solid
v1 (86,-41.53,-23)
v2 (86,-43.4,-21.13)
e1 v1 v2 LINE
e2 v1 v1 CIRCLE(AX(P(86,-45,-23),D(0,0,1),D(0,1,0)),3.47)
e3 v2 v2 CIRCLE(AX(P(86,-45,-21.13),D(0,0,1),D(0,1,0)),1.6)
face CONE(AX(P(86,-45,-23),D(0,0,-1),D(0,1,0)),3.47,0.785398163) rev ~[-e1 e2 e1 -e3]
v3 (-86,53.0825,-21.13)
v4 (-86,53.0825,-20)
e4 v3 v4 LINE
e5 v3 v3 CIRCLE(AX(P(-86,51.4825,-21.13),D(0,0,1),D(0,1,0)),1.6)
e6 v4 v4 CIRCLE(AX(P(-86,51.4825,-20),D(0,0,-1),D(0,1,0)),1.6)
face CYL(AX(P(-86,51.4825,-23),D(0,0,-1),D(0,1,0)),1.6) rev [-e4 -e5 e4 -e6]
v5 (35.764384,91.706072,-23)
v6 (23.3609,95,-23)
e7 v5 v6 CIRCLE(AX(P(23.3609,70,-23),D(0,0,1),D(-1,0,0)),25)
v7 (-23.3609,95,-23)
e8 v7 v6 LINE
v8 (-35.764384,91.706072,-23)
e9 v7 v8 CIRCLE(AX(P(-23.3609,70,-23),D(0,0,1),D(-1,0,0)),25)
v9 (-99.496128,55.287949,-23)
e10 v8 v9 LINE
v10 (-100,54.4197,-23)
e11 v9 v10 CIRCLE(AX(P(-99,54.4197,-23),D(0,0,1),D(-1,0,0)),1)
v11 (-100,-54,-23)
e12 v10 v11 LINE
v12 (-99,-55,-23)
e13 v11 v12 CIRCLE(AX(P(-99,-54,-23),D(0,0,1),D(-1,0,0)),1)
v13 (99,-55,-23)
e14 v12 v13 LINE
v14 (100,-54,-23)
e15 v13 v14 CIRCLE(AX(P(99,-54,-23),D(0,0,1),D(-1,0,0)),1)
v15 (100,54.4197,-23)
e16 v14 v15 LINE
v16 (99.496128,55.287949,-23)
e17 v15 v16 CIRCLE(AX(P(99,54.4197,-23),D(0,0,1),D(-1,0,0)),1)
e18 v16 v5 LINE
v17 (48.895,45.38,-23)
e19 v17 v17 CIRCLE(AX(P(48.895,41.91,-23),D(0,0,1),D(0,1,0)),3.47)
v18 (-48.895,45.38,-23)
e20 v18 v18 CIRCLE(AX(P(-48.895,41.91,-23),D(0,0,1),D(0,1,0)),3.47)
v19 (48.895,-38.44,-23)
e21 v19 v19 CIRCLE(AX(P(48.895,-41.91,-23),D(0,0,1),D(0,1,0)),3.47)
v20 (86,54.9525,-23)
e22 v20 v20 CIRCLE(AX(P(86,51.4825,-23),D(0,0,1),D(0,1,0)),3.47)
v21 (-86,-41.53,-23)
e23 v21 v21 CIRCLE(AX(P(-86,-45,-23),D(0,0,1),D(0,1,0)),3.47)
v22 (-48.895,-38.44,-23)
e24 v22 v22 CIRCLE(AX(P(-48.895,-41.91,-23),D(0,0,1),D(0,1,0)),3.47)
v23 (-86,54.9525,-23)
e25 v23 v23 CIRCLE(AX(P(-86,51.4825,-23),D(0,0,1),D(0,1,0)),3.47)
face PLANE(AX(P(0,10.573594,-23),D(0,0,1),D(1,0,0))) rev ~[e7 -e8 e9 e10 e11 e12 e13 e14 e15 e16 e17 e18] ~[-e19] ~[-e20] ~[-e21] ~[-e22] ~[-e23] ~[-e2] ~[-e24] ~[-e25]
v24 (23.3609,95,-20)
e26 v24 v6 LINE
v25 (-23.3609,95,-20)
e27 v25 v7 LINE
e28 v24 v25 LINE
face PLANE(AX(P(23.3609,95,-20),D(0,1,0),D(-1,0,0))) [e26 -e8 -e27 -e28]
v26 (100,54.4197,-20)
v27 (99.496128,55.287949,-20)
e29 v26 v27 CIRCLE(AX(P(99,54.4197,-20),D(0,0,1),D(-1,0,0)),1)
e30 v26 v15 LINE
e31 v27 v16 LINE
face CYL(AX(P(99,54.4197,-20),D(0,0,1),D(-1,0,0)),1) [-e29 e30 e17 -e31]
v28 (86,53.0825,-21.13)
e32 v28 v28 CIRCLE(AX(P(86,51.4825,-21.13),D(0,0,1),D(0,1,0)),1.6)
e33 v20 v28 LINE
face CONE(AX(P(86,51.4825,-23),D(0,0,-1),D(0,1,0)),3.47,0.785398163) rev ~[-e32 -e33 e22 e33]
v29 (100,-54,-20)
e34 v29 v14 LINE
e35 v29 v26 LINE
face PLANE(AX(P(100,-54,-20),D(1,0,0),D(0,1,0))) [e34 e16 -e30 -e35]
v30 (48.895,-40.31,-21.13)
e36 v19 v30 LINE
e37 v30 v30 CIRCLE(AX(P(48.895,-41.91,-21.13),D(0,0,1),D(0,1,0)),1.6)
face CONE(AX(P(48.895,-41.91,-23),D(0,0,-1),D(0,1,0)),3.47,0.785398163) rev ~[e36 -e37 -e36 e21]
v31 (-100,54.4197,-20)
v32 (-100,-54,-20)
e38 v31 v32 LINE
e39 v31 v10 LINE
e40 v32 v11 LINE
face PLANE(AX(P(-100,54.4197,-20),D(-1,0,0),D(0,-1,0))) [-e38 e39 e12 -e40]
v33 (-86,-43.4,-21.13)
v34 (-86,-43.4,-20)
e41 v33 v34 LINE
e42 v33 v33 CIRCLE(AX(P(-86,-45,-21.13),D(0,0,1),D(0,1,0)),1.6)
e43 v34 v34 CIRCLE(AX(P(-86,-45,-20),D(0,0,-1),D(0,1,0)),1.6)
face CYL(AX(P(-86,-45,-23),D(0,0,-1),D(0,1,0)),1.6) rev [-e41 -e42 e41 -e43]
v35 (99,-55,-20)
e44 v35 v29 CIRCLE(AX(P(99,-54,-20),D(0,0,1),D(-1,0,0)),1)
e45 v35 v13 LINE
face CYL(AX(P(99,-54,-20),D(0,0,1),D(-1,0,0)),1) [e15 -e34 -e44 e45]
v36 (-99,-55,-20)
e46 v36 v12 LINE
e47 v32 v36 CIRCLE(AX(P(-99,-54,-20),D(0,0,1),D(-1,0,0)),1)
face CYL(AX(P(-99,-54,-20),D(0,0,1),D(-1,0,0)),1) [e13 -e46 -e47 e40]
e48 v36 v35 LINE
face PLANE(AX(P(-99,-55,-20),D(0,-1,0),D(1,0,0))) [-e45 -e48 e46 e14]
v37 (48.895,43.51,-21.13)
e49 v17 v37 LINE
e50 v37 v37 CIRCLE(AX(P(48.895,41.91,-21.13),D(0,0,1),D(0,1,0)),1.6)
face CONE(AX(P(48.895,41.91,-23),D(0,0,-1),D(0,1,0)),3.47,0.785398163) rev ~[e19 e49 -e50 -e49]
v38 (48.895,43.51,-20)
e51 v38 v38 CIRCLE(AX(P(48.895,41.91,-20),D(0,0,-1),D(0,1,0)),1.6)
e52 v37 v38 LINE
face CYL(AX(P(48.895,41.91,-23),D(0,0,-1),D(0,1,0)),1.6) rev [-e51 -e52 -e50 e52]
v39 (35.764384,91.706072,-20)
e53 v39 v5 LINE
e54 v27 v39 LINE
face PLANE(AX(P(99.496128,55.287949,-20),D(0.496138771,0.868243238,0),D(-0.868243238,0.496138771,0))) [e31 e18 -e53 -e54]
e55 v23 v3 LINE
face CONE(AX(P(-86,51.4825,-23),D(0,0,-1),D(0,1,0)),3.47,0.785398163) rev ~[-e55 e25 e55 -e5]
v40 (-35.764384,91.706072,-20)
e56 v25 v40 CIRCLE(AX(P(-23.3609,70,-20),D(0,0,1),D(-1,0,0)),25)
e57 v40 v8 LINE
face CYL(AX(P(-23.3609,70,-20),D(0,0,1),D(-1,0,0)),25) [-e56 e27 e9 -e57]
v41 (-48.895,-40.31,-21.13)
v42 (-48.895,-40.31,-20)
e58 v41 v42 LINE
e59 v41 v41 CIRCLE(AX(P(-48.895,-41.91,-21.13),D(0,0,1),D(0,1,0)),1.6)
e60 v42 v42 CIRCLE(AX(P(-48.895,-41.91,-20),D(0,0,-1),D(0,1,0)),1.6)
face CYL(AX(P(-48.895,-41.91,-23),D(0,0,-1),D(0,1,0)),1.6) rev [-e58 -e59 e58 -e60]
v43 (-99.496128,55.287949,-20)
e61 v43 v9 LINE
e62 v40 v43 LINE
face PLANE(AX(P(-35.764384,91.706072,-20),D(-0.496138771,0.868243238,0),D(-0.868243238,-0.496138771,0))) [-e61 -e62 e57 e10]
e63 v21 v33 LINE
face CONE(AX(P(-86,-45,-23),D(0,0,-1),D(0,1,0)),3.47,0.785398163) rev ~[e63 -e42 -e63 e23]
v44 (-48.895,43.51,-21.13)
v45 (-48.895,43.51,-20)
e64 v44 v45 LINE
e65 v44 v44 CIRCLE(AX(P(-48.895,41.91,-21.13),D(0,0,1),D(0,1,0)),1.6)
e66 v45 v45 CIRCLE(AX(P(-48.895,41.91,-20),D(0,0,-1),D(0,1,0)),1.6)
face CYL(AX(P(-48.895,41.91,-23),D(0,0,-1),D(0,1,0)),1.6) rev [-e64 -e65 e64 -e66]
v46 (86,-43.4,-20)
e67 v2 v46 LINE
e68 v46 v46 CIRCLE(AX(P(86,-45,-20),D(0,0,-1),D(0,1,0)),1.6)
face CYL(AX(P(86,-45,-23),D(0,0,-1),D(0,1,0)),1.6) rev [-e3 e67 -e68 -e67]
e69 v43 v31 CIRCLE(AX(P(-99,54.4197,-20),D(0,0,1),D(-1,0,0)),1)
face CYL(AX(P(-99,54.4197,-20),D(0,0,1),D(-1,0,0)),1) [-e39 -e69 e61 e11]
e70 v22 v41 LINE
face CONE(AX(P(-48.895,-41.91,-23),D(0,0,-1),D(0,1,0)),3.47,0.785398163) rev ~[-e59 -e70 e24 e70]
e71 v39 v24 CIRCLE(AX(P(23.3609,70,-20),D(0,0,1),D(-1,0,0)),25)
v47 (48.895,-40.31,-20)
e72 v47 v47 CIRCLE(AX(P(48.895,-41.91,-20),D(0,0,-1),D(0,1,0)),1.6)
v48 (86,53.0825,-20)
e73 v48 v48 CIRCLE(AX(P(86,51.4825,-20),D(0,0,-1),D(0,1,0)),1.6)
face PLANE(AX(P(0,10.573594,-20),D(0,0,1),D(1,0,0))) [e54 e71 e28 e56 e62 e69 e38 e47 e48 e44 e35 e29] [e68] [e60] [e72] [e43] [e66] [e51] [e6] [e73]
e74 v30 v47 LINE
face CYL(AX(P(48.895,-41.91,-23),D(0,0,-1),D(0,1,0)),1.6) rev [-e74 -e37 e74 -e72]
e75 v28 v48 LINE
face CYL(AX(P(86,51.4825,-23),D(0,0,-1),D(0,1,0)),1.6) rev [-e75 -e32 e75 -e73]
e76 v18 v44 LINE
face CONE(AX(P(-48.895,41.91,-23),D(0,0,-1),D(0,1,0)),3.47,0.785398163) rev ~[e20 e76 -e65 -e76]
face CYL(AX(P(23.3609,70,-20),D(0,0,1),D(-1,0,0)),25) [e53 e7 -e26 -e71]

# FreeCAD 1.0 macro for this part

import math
import FreeCAD as App
import Part
import Sketcher

V = App.Vector

doc = App.newDocument("Part")
body = doc.addObject("PartDesign::Body", "Body")

sketch1 = body.newObject("Sketcher::SketchObject", "Sketch")
sketch1.AttachmentSupport = (doc.getObject("XY_Plane"), [""])
sketch1.MapMode = "FlatFace"
sketch1.AttachmentOffset = App.Placement(V(0, 0, -20), App.Rotation())
sketch1.addGeometry([
    Part.LineSegment(V(35.8, 91.7, 0), V(99.5, 55.3, 0)),
    Part.ArcOfCircle(Part.Circle(V(99, 54.4, 0), V(0, 0, 1), 1), math.radians(0), math.radians(60)),
    Part.LineSegment(V(100, 54.4, 0), V(100, -54, 0)),
    Part.ArcOfCircle(Part.Circle(V(99, -54, 0), V(0, 0, 1), 1), math.radians(-90), math.radians(0)),
    Part.LineSegment(V(99, -55, 0), V(-99, -55, 0)),
    Part.ArcOfCircle(Part.Circle(V(-99, -54, 0), V(0, 0, 1), 1), math.radians(180), math.radians(270)),
    Part.LineSegment(V(-100, -54, 0), V(-100, 54.4, 0)),
    Part.ArcOfCircle(Part.Circle(V(-99, 54.4, 0), V(0, 0, 1), 1), math.radians(120), math.radians(180)),
    Part.LineSegment(V(-99.5, 55.3, 0), V(-35.8, 91.7, 0)),
    Part.ArcOfCircle(Part.Circle(V(-23.4, 70, 0), V(0, 0, 1), 25), math.radians(90), math.radians(120)),
    Part.LineSegment(V(-23.4, 95, 0), V(23.4, 95, 0)),
    Part.ArcOfCircle(Part.Circle(V(23.4, 70, 0), V(0, 0, 1), 25), math.radians(60), math.radians(90)),
], False)
sketch1.addConstraint([
    Sketcher.Constraint("Tangent", 0, 2, 1, 2),
    Sketcher.Constraint("Tangent", 1, 1, 2, 1),
    Sketcher.Constraint("Tangent", 2, 2, 3, 2),
    Sketcher.Constraint("Tangent", 3, 1, 4, 1),
    Sketcher.Constraint("Tangent", 4, 2, 5, 2),
    Sketcher.Constraint("Tangent", 5, 1, 6, 1),
    Sketcher.Constraint("Tangent", 6, 2, 7, 2),
    Sketcher.Constraint("Tangent", 7, 1, 8, 1),
    Sketcher.Constraint("Tangent", 8, 2, 9, 2),
    Sketcher.Constraint("Tangent", 9, 1, 10, 1),
    Sketcher.Constraint("Tangent", 10, 2, 11, 2),
    Sketcher.Constraint("Tangent", 11, 1, 0, 1),
    Sketcher.Constraint("Vertical", 2),
    Sketcher.Constraint("Horizontal", 4),
    Sketcher.Constraint("Vertical", 6),
    Sketcher.Constraint("Horizontal", 10),
    Sketcher.Constraint("Equal", 1, 3),
    Sketcher.Constraint("Equal", 3, 5),
    Sketcher.Constraint("Equal", 5, 7),
    Sketcher.Constraint("Equal", 9, 11),
    Sketcher.Constraint("Symmetric", 1, 3, 7, 3, -2),
    Sketcher.Constraint("Horizontal", 8, 2, 11, 1),
    Sketcher.Constraint("Radius", 1, 1.0),
    Sketcher.Constraint("Radius", 9, 25.0),
    Sketcher.Constraint("DistanceX", 4, 2, 4, 1, 198.0),
    Sketcher.Constraint("DistanceY", 3, 3, -1, 1, 54.0),
    Sketcher.Constraint("DistanceY", -1, 1, 9, 3, 70.0),
    Sketcher.Constraint("Distance", 0, 73.403),
    Sketcher.Constraint("DistanceX", 10, 1, 10, 2, 46.7218),
])
pad1 = body.newObject("PartDesign::Pad", "Pad")
pad1.Profile = sketch1
pad1.Length = 3
pad1.Reversed = True

sketch2 = body.newObject("Sketcher::SketchObject", "Sketch001")
sketch2.AttachmentSupport = (doc.getObject("XY_Plane"), [""])
sketch2.MapMode = "FlatFace"
sketch2.AttachmentOffset = App.Placement(V(0, 0, -23), App.Rotation())
sketch2.addGeometry(Part.Circle(V(86, 51.5, 0), V(0, 0, 1), 1.6), False)
sketch2.addConstraint([
    Sketcher.Constraint("Diameter", 0, 3.2),
    Sketcher.Constraint("DistanceX", -1, 1, 0, 3, 86.0),
    Sketcher.Constraint("DistanceY", -1, 1, 0, 3, 51.4825),
])
doc.recompute()
hole = body.newObject("PartDesign::Hole", "Hole")
hole.Profile = sketch2
hole.ThreadType = "None"
hole.Diameter = 3.2
hole.DepthType = "ThroughAll"
hole.HoleCutType = "Countersink"
hole.HoleCutDiameter = 6.94
hole.HoleCutCountersinkAngle = 90
hole.Reversed = True

sketch3 = body.newObject("Sketcher::SketchObject", "Sketch002")
sketch3.AttachmentSupport = (doc.getObject("XY_Plane"), [""])
sketch3.MapMode = "FlatFace"
sketch3.AttachmentOffset = App.Placement(V(0, 0, -23), App.Rotation())
sketch3.addGeometry(Part.Circle(V(86, -45, 0), V(0, 0, 1), 1.6), False)
sketch3.addConstraint([
    Sketcher.Constraint("Diameter", 0, 3.2),
    Sketcher.Constraint("DistanceX", -1, 1, 0, 3, 86.0),
    Sketcher.Constraint("DistanceY", 0, 3, -1, 1, 45.0),
])
doc.recompute()
hole2 = body.newObject("PartDesign::Hole", "Hole001")
hole2.Profile = sketch3
hole2.ThreadType = "None"
hole2.Diameter = 3.2
hole2.DepthType = "ThroughAll"
hole2.HoleCutType = "Countersink"
hole2.HoleCutDiameter = 6.94
hole2.HoleCutCountersinkAngle = 90
hole2.Reversed = True

sketch4 = body.newObject("Sketcher::SketchObject", "Sketch003")
sketch4.AttachmentSupport = (doc.getObject("XY_Plane"), [""])
sketch4.MapMode = "FlatFace"
sketch4.AttachmentOffset = App.Placement(V(0, 0, -23), App.Rotation())
sketch4.addGeometry(Part.Circle(V(-86, 51.5, 0), V(0, 0, 1), 1.6), False)
sketch4.addConstraint([
    Sketcher.Constraint("Diameter", 0, 3.2),
    Sketcher.Constraint("DistanceX", 0, 3, -1, 1, 86.0),
    Sketcher.Constraint("DistanceY", -1, 1, 0, 3, 51.4825),
])
doc.recompute()
hole3 = body.newObject("PartDesign::Hole", "Hole002")
hole3.Profile = sketch4
hole3.ThreadType = "None"
hole3.Diameter = 3.2
hole3.DepthType = "ThroughAll"
hole3.HoleCutType = "Countersink"
hole3.HoleCutDiameter = 6.94
hole3.HoleCutCountersinkAngle = 90
hole3.Reversed = True

sketch5 = body.newObject("Sketcher::SketchObject", "Sketch004")
sketch5.AttachmentSupport = (doc.getObject("XY_Plane"), [""])
sketch5.MapMode = "FlatFace"
sketch5.AttachmentOffset = App.Placement(V(0, 0, -23), App.Rotation())
sketch5.addGeometry(Part.Circle(V(-86, -45, 0), V(0, 0, 1), 1.6), False)
sketch5.addConstraint([
    Sketcher.Constraint("Diameter", 0, 3.2),
    Sketcher.Constraint("DistanceX", 0, 3, -1, 1, 86.0),
    Sketcher.Constraint("DistanceY", 0, 3, -1, 1, 45.0),
])
doc.recompute()
hole4 = body.newObject("PartDesign::Hole", "Hole003")
hole4.Profile = sketch5
hole4.ThreadType = "None"
hole4.Diameter = 3.2
hole4.DepthType = "ThroughAll"
hole4.HoleCutType = "Countersink"
hole4.HoleCutDiameter = 6.94
hole4.HoleCutCountersinkAngle = 90
hole4.Reversed = True

sketch6 = body.newObject("Sketcher::SketchObject", "Sketch005")
sketch6.AttachmentSupport = (doc.getObject("XY_Plane"), [""])
sketch6.MapMode = "FlatFace"
sketch6.AttachmentOffset = App.Placement(V(0, 0, -23), App.Rotation())
sketch6.addGeometry(Part.Circle(V(48.9, 41.9, 0), V(0, 0, 1), 1.6), False)
sketch6.addConstraint([
    Sketcher.Constraint("Diameter", 0, 3.2),
    Sketcher.Constraint("DistanceY", -1, 1, 0, 3, 41.91),
    Sketcher.Constraint("DistanceX", -1, 1, 0, 3, 48.895),
])
doc.recompute()
hole5 = body.newObject("PartDesign::Hole", "Hole004")
hole5.Profile = sketch6
hole5.ThreadType = "None"
hole5.Diameter = 3.2
hole5.DepthType = "ThroughAll"
hole5.HoleCutType = "Countersink"
hole5.HoleCutDiameter = 6.94
hole5.HoleCutCountersinkAngle = 90
hole5.Reversed = True

sketch7 = body.newObject("Sketcher::SketchObject", "Sketch006")
sketch7.AttachmentSupport = (doc.getObject("XY_Plane"), [""])
sketch7.MapMode = "FlatFace"
sketch7.AttachmentOffset = App.Placement(V(0, 0, -23), App.Rotation())
sketch7.addGeometry(Part.Circle(V(-48.9, 41.9, 0), V(0, 0, 1), 1.6), False)
sketch7.addConstraint([
    Sketcher.Constraint("Diameter", 0, 3.2),
    Sketcher.Constraint("DistanceY", -1, 1, 0, 3, 41.91),
    Sketcher.Constraint("DistanceX", 0, 3, -1, 1, 48.895),
])
doc.recompute()
hole6 = body.newObject("PartDesign::Hole", "Hole005")
hole6.Profile = sketch7
hole6.ThreadType = "None"
hole6.Diameter = 3.2
hole6.DepthType = "ThroughAll"
hole6.HoleCutType = "Countersink"
hole6.HoleCutDiameter = 6.94
hole6.HoleCutCountersinkAngle = 90
hole6.Reversed = True

sketch8 = body.newObject("Sketcher::SketchObject", "Sketch007")
sketch8.AttachmentSupport = (doc.getObject("XY_Plane"), [""])
sketch8.MapMode = "FlatFace"
sketch8.AttachmentOffset = App.Placement(V(0, 0, -23), App.Rotation())
sketch8.addGeometry(Part.Circle(V(-48.9, -41.9, 0), V(0, 0, 1), 1.6), False)
sketch8.addConstraint([
    Sketcher.Constraint("Diameter", 0, 3.2),
    Sketcher.Constraint("DistanceY", 0, 3, -1, 1, 41.91),
    Sketcher.Constraint("DistanceX", 0, 3, -1, 1, 48.895),
])
doc.recompute()
hole7 = body.newObject("PartDesign::Hole", "Hole006")
hole7.Profile = sketch8
hole7.ThreadType = "None"
hole7.Diameter = 3.2
hole7.DepthType = "ThroughAll"
hole7.HoleCutType = "Countersink"
hole7.HoleCutDiameter = 6.94
hole7.HoleCutCountersinkAngle = 90
hole7.Reversed = True

sketch9 = body.newObject("Sketcher::SketchObject", "Sketch008")
sketch9.AttachmentSupport = (doc.getObject("XY_Plane"), [""])
sketch9.MapMode = "FlatFace"
sketch9.AttachmentOffset = App.Placement(V(0, 0, -23), App.Rotation())
sketch9.addGeometry(Part.Circle(V(48.9, -41.9, 0), V(0, 0, 1), 1.6), False)
sketch9.addConstraint([
    Sketcher.Constraint("Diameter", 0, 3.2),
    Sketcher.Constraint("DistanceY", 0, 3, -1, 1, 41.91),
    Sketcher.Constraint("DistanceX", -1, 1, 0, 3, 48.895),
])
doc.recompute()
hole8 = body.newObject("PartDesign::Hole", "Hole007")
hole8.Profile = sketch9
hole8.ThreadType = "None"
hole8.Diameter = 3.2
hole8.DepthType = "ThroughAll"
hole8.HoleCutType = "Countersink"
hole8.HoleCutDiameter = 6.94
hole8.HoleCutCountersinkAngle = 90
hole8.Reversed = True

doc.recompute()
